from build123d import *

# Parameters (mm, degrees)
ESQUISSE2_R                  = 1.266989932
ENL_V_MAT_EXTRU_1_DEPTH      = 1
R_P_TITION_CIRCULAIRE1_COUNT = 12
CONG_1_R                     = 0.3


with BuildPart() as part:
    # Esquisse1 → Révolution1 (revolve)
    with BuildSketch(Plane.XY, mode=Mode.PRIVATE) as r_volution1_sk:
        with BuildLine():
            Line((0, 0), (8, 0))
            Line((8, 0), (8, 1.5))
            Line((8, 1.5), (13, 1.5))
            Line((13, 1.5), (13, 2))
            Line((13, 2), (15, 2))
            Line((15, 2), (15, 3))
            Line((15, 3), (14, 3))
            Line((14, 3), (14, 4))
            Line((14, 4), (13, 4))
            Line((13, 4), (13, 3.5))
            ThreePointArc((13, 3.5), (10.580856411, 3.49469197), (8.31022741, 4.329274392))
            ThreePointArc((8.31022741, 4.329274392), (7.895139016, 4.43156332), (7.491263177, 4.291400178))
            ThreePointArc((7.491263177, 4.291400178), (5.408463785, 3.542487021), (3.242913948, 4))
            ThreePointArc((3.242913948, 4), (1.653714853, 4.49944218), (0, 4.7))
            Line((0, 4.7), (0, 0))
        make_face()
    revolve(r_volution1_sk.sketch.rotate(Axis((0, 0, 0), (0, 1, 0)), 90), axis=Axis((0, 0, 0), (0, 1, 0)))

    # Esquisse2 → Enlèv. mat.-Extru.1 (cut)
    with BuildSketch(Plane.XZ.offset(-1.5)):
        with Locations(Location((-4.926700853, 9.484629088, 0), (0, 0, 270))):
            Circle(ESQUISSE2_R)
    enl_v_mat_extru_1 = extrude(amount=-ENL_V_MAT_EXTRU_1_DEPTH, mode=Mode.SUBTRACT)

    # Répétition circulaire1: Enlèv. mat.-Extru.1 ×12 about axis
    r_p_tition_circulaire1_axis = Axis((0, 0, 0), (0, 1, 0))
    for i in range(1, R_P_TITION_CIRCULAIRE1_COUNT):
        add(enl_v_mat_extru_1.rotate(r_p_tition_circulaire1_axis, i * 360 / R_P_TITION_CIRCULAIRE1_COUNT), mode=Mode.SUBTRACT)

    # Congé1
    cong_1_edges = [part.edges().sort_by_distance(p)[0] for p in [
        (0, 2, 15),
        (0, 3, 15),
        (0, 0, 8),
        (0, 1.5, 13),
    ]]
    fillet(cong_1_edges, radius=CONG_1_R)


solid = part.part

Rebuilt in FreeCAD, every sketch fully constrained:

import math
import FreeCAD as App
import Part
import Sketcher


def edges_at(feature, points):
    """Names of the edges that pass closest to the given points."""
    edges = feature.Shape.Edges
    near = lambda p: min(range(len(edges)), key=lambda i: edges[i].distToShape(Part.Vertex(*p))[0])
    return sorted({f"Edge{near(p) + 1}" for p in points})

doc = App.newDocument("Part")
params = doc.addObject("Spreadsheet::Sheet", "Params")
for row, (alias, value) in enumerate([
    ("sketch1_width", "8 mm"),
    ("sketch1_width2", "5 mm"),
    ("sketch1_width3", "2 mm"),
    ("sketch1_height", "1.5 mm"),
    ("sketch1_height2", "0.5 mm"),
    ("revolution_angle", "360 deg"),
    ("pocket1_length", "1 mm"),
    ("fillet_radius", "0.3 mm"),
], start=1):
    params.set(f"A{row}", alias)
    params.set(f"B{row}", "=" + value)
    params.setAlias(f"B{row}", alias)

body = doc.addObject("PartDesign::Body", "Body")

sketch1 = doc.addObject("Sketcher::SketchObject", "Sketch")
body.addObject(sketch1)
sketch1.AttachmentSupport = (doc.XY_Plane, [""])
sketch1.MapMode = "FlatFace"
sketch1.addGeometry(Part.LineSegment(App.Vector(0, 0, 0), App.Vector(8, 0, 0)), False)
sketch1.addGeometry(Part.LineSegment(App.Vector(8, 0, 0), App.Vector(8, 1.5, 0)), False)
sketch1.addGeometry(Part.LineSegment(App.Vector(8, 1.5, 0), App.Vector(13, 1.5, 0)), False)
sketch1.addGeometry(Part.LineSegment(App.Vector(13, 1.5, 0), App.Vector(13, 2, 0)), False)
sketch1.addGeometry(Part.LineSegment(App.Vector(13, 2, 0), App.Vector(15, 2, 0)), False)
sketch1.addGeometry(Part.LineSegment(App.Vector(15, 2, 0), App.Vector(15, 3, 0)), False)
sketch1.addGeometry(Part.LineSegment(App.Vector(15, 3, 0), App.Vector(14, 3, 0)), False)
sketch1.addGeometry(Part.LineSegment(App.Vector(14, 3, 0), App.Vector(14, 4, 0)), False)
sketch1.addGeometry(Part.LineSegment(App.Vector(14, 4, 0), App.Vector(13, 4, 0)), False)
sketch1.addGeometry(Part.LineSegment(App.Vector(13, 4, 0), App.Vector(13, 3.5, 0)), False)
sketch1.addGeometry(Part.ArcOfCircle(Part.Circle(App.Vector(11.8, 10.3, 0), App.Vector(0, 0, 1), 6.9), math.radians(-120), math.radians(-80)), False)
sketch1.addGeometry(Part.ArcOfCircle(Part.Circle(App.Vector(7.9, 3.7, 0), App.Vector(0, 0, 1), 0.8), math.radians(60), math.radians(126)), False)
sketch1.addGeometry(Part.ArcOfCircle(Part.Circle(App.Vector(5.1, 7.6, 0), App.Vector(0, 0, 1), 4.1), math.radians(-118), math.radians(-54)), False)
sketch1.addGeometry(Part.ArcOfCircle(Part.Circle(App.Vector(-0.3, -4.4, 0), App.Vector(0, 0, 1), 9.1), math.radians(67), math.radians(88)), False)
sketch1.addGeometry(Part.LineSegment(App.Vector(0, 4.7, 0), App.Vector(0, 0, 0)), False)
sketch1.addConstraint(Sketcher.Constraint("Coincident", 0, 2, 1, 1))
sketch1.addConstraint(Sketcher.Constraint("Coincident", 1, 2, 2, 1))
sketch1.addConstraint(Sketcher.Constraint("Coincident", 2, 2, 3, 1))
sketch1.addConstraint(Sketcher.Constraint("Coincident", 3, 2, 4, 1))
sketch1.addConstraint(Sketcher.Constraint("Coincident", 4, 2, 5, 1))
sketch1.addConstraint(Sketcher.Constraint("Coincident", 5, 2, 6, 1))
sketch1.addConstraint(Sketcher.Constraint("Coincident", 6, 2, 7, 1))
sketch1.addConstraint(Sketcher.Constraint("Coincident", 7, 2, 8, 1))
sketch1.addConstraint(Sketcher.Constraint("Coincident", 8, 2, 9, 1))
sketch1.addConstraint(Sketcher.Constraint("Coincident", 9, 2, 10, 2))
sketch1.addConstraint(Sketcher.Constraint("Tangent", 10, 1, 11, 1))
sketch1.addConstraint(Sketcher.Constraint("Tangent", 11, 2, 12, 2))
sketch1.addConstraint(Sketcher.Constraint("Coincident", 12, 1, 13, 1))
sketch1.addConstraint(Sketcher.Constraint("Coincident", 13, 2, 14, 1))
sketch1.addConstraint(Sketcher.Constraint("Coincident", 14, 2, 0, 1))
sketch1.addConstraint(Sketcher.Constraint("Horizontal", 0))
sketch1.addConstraint(Sketcher.Constraint("Vertical", 1))
sketch1.addConstraint(Sketcher.Constraint("Horizontal", 2))
sketch1.addConstraint(Sketcher.Constraint("Vertical", 3))
sketch1.addConstraint(Sketcher.Constraint("Horizontal", 4))
sketch1.addConstraint(Sketcher.Constraint("Vertical", 5))
sketch1.addConstraint(Sketcher.Constraint("Horizontal", 6))
sketch1.addConstraint(Sketcher.Constraint("Vertical", 7))
sketch1.addConstraint(Sketcher.Constraint("Horizontal", 8))
sketch1.addConstraint(Sketcher.Constraint("Vertical", 9))
sketch1.addConstraint(Sketcher.Constraint("Vertical", 14))
sketch1.addConstraint(Sketcher.Constraint("Coincident", 14, 2, -1, 1))
sketch1.addConstraint(Sketcher.Constraint("Horizontal", 8, 2, 12, 1))
sketch1.addConstraint(Sketcher.Constraint("Vertical", 3, 2, 8, 2))
sketch1.addConstraint(Sketcher.Constraint("Equal", 6, 8))
sketch1.addConstraint(Sketcher.Constraint("Equal", 8, 5))
sketch1.addConstraint(Sketcher.Constraint("Equal", 5, 7))
sketch1.addConstraint(Sketcher.Constraint("Equal", 3, 9))
sketch1.addConstraint(Sketcher.Constraint("DistanceX", 0, 1, 0, 2, 8.0))
sketch1.addConstraint(Sketcher.Constraint("DistanceX", 2, 1, 2, 2, 5.0))
sketch1.addConstraint(Sketcher.Constraint("DistanceX", 4, 1, 4, 2, 2.0))
sketch1.addConstraint(Sketcher.Constraint("DistanceY", 1, 1, 1, 2, 1.5))
sketch1.addConstraint(Sketcher.Constraint("DistanceY", 3, 1, 3, 2, 0.5))
sketch1.addConstraint(Sketcher.Constraint("DistanceY", 14, 2, 14, 1, 4.7))
sketch1.addConstraint(Sketcher.Constraint("Radius", 11, 0.752999))
sketch1.addConstraint(Sketcher.Constraint("Radius", 10, 6.861469))
sketch1.addConstraint(Sketcher.Constraint("Radius", 12, 4.051173))
sketch1.addConstraint(Sketcher.Constraint("Radius", 13, 9.075492))
sketch1.addConstraint(Sketcher.Constraint("DistanceY", -1, 1, 11, 2, 4.2914))
sketch1.addConstraint(Sketcher.Constraint("DistanceX", 13, 3, 11, 3, 8.1911))
sketch1.addConstraint(Sketcher.Constraint("DistanceY", 13, 3, 11, 3, 8.051101))
sketch1.setExpression("Constraints[33]", "Params.sketch1_width")
sketch1.setExpression("Constraints[34]", "Params.sketch1_width2")
sketch1.setExpression("Constraints[35]", "Params.sketch1_width3")
sketch1.setExpression("Constraints[36]", "Params.sketch1_height")
sketch1.setExpression("Constraints[37]", "Params.sketch1_height2")
revolution = doc.addObject("PartDesign::Revolution", "Revolution")
body.addObject(revolution)
revolution.Profile = sketch1
revolution.ReferenceAxis = (sketch1, ["V_Axis"])
revolution.setExpression("Angle", "Params.revolution_angle")

sketch2 = doc.addObject("Sketcher::SketchObject", "Sketch001")
body.addObject(sketch2)
sketch2.AttachmentSupport = (doc.XZ_Plane, [""])
sketch2.MapMode = "FlatFace"
sketch2.AttachmentOffset = App.Placement(App.Vector(0, 0, -1.5), App.Rotation())
sketch2.addGeometry(Part.Circle(App.Vector(-4.9, 9.5, 0), App.Vector(0, 0, 1), 1.3), False)
sketch2.addConstraint(Sketcher.Constraint("Diameter", 0, 2.53398))
sketch2.addConstraint(Sketcher.Constraint("DistanceX", 0, 3, -1, 1, 4.926701))
sketch2.addConstraint(Sketcher.Constraint("DistanceY", -1, 1, 0, 3, 9.484629))
pocket1 = doc.addObject("PartDesign::Pocket", "Pocket")
body.addObject(pocket1)
pocket1.Profile = sketch2
pocket1.setExpression("Length", "Params.pocket1_length")
doc.recompute()

polarpattern = doc.addObject("PartDesign::PolarPattern", "PolarPattern")
body.addObject(polarpattern)
polarpattern.Originals = [pocket1]
polarpattern.Axis = (doc.Y_Axis, [""])
polarpattern.Angle = 360
polarpattern.Occurrences = 12
body.Tip = polarpattern
doc.recompute()

fillet = doc.addObject("PartDesign::Fillet", "Fillet")
body.addObject(fillet)
fillet.Base = (polarpattern, edges_at(polarpattern, [
    (0, 2, 15),
    (0, 3, 15),
    (0, 0, 8),
    (0, 1.5, 13),
]))
fillet.setExpression("Radius", "Params.fillet_radius")

doc.recompute()
